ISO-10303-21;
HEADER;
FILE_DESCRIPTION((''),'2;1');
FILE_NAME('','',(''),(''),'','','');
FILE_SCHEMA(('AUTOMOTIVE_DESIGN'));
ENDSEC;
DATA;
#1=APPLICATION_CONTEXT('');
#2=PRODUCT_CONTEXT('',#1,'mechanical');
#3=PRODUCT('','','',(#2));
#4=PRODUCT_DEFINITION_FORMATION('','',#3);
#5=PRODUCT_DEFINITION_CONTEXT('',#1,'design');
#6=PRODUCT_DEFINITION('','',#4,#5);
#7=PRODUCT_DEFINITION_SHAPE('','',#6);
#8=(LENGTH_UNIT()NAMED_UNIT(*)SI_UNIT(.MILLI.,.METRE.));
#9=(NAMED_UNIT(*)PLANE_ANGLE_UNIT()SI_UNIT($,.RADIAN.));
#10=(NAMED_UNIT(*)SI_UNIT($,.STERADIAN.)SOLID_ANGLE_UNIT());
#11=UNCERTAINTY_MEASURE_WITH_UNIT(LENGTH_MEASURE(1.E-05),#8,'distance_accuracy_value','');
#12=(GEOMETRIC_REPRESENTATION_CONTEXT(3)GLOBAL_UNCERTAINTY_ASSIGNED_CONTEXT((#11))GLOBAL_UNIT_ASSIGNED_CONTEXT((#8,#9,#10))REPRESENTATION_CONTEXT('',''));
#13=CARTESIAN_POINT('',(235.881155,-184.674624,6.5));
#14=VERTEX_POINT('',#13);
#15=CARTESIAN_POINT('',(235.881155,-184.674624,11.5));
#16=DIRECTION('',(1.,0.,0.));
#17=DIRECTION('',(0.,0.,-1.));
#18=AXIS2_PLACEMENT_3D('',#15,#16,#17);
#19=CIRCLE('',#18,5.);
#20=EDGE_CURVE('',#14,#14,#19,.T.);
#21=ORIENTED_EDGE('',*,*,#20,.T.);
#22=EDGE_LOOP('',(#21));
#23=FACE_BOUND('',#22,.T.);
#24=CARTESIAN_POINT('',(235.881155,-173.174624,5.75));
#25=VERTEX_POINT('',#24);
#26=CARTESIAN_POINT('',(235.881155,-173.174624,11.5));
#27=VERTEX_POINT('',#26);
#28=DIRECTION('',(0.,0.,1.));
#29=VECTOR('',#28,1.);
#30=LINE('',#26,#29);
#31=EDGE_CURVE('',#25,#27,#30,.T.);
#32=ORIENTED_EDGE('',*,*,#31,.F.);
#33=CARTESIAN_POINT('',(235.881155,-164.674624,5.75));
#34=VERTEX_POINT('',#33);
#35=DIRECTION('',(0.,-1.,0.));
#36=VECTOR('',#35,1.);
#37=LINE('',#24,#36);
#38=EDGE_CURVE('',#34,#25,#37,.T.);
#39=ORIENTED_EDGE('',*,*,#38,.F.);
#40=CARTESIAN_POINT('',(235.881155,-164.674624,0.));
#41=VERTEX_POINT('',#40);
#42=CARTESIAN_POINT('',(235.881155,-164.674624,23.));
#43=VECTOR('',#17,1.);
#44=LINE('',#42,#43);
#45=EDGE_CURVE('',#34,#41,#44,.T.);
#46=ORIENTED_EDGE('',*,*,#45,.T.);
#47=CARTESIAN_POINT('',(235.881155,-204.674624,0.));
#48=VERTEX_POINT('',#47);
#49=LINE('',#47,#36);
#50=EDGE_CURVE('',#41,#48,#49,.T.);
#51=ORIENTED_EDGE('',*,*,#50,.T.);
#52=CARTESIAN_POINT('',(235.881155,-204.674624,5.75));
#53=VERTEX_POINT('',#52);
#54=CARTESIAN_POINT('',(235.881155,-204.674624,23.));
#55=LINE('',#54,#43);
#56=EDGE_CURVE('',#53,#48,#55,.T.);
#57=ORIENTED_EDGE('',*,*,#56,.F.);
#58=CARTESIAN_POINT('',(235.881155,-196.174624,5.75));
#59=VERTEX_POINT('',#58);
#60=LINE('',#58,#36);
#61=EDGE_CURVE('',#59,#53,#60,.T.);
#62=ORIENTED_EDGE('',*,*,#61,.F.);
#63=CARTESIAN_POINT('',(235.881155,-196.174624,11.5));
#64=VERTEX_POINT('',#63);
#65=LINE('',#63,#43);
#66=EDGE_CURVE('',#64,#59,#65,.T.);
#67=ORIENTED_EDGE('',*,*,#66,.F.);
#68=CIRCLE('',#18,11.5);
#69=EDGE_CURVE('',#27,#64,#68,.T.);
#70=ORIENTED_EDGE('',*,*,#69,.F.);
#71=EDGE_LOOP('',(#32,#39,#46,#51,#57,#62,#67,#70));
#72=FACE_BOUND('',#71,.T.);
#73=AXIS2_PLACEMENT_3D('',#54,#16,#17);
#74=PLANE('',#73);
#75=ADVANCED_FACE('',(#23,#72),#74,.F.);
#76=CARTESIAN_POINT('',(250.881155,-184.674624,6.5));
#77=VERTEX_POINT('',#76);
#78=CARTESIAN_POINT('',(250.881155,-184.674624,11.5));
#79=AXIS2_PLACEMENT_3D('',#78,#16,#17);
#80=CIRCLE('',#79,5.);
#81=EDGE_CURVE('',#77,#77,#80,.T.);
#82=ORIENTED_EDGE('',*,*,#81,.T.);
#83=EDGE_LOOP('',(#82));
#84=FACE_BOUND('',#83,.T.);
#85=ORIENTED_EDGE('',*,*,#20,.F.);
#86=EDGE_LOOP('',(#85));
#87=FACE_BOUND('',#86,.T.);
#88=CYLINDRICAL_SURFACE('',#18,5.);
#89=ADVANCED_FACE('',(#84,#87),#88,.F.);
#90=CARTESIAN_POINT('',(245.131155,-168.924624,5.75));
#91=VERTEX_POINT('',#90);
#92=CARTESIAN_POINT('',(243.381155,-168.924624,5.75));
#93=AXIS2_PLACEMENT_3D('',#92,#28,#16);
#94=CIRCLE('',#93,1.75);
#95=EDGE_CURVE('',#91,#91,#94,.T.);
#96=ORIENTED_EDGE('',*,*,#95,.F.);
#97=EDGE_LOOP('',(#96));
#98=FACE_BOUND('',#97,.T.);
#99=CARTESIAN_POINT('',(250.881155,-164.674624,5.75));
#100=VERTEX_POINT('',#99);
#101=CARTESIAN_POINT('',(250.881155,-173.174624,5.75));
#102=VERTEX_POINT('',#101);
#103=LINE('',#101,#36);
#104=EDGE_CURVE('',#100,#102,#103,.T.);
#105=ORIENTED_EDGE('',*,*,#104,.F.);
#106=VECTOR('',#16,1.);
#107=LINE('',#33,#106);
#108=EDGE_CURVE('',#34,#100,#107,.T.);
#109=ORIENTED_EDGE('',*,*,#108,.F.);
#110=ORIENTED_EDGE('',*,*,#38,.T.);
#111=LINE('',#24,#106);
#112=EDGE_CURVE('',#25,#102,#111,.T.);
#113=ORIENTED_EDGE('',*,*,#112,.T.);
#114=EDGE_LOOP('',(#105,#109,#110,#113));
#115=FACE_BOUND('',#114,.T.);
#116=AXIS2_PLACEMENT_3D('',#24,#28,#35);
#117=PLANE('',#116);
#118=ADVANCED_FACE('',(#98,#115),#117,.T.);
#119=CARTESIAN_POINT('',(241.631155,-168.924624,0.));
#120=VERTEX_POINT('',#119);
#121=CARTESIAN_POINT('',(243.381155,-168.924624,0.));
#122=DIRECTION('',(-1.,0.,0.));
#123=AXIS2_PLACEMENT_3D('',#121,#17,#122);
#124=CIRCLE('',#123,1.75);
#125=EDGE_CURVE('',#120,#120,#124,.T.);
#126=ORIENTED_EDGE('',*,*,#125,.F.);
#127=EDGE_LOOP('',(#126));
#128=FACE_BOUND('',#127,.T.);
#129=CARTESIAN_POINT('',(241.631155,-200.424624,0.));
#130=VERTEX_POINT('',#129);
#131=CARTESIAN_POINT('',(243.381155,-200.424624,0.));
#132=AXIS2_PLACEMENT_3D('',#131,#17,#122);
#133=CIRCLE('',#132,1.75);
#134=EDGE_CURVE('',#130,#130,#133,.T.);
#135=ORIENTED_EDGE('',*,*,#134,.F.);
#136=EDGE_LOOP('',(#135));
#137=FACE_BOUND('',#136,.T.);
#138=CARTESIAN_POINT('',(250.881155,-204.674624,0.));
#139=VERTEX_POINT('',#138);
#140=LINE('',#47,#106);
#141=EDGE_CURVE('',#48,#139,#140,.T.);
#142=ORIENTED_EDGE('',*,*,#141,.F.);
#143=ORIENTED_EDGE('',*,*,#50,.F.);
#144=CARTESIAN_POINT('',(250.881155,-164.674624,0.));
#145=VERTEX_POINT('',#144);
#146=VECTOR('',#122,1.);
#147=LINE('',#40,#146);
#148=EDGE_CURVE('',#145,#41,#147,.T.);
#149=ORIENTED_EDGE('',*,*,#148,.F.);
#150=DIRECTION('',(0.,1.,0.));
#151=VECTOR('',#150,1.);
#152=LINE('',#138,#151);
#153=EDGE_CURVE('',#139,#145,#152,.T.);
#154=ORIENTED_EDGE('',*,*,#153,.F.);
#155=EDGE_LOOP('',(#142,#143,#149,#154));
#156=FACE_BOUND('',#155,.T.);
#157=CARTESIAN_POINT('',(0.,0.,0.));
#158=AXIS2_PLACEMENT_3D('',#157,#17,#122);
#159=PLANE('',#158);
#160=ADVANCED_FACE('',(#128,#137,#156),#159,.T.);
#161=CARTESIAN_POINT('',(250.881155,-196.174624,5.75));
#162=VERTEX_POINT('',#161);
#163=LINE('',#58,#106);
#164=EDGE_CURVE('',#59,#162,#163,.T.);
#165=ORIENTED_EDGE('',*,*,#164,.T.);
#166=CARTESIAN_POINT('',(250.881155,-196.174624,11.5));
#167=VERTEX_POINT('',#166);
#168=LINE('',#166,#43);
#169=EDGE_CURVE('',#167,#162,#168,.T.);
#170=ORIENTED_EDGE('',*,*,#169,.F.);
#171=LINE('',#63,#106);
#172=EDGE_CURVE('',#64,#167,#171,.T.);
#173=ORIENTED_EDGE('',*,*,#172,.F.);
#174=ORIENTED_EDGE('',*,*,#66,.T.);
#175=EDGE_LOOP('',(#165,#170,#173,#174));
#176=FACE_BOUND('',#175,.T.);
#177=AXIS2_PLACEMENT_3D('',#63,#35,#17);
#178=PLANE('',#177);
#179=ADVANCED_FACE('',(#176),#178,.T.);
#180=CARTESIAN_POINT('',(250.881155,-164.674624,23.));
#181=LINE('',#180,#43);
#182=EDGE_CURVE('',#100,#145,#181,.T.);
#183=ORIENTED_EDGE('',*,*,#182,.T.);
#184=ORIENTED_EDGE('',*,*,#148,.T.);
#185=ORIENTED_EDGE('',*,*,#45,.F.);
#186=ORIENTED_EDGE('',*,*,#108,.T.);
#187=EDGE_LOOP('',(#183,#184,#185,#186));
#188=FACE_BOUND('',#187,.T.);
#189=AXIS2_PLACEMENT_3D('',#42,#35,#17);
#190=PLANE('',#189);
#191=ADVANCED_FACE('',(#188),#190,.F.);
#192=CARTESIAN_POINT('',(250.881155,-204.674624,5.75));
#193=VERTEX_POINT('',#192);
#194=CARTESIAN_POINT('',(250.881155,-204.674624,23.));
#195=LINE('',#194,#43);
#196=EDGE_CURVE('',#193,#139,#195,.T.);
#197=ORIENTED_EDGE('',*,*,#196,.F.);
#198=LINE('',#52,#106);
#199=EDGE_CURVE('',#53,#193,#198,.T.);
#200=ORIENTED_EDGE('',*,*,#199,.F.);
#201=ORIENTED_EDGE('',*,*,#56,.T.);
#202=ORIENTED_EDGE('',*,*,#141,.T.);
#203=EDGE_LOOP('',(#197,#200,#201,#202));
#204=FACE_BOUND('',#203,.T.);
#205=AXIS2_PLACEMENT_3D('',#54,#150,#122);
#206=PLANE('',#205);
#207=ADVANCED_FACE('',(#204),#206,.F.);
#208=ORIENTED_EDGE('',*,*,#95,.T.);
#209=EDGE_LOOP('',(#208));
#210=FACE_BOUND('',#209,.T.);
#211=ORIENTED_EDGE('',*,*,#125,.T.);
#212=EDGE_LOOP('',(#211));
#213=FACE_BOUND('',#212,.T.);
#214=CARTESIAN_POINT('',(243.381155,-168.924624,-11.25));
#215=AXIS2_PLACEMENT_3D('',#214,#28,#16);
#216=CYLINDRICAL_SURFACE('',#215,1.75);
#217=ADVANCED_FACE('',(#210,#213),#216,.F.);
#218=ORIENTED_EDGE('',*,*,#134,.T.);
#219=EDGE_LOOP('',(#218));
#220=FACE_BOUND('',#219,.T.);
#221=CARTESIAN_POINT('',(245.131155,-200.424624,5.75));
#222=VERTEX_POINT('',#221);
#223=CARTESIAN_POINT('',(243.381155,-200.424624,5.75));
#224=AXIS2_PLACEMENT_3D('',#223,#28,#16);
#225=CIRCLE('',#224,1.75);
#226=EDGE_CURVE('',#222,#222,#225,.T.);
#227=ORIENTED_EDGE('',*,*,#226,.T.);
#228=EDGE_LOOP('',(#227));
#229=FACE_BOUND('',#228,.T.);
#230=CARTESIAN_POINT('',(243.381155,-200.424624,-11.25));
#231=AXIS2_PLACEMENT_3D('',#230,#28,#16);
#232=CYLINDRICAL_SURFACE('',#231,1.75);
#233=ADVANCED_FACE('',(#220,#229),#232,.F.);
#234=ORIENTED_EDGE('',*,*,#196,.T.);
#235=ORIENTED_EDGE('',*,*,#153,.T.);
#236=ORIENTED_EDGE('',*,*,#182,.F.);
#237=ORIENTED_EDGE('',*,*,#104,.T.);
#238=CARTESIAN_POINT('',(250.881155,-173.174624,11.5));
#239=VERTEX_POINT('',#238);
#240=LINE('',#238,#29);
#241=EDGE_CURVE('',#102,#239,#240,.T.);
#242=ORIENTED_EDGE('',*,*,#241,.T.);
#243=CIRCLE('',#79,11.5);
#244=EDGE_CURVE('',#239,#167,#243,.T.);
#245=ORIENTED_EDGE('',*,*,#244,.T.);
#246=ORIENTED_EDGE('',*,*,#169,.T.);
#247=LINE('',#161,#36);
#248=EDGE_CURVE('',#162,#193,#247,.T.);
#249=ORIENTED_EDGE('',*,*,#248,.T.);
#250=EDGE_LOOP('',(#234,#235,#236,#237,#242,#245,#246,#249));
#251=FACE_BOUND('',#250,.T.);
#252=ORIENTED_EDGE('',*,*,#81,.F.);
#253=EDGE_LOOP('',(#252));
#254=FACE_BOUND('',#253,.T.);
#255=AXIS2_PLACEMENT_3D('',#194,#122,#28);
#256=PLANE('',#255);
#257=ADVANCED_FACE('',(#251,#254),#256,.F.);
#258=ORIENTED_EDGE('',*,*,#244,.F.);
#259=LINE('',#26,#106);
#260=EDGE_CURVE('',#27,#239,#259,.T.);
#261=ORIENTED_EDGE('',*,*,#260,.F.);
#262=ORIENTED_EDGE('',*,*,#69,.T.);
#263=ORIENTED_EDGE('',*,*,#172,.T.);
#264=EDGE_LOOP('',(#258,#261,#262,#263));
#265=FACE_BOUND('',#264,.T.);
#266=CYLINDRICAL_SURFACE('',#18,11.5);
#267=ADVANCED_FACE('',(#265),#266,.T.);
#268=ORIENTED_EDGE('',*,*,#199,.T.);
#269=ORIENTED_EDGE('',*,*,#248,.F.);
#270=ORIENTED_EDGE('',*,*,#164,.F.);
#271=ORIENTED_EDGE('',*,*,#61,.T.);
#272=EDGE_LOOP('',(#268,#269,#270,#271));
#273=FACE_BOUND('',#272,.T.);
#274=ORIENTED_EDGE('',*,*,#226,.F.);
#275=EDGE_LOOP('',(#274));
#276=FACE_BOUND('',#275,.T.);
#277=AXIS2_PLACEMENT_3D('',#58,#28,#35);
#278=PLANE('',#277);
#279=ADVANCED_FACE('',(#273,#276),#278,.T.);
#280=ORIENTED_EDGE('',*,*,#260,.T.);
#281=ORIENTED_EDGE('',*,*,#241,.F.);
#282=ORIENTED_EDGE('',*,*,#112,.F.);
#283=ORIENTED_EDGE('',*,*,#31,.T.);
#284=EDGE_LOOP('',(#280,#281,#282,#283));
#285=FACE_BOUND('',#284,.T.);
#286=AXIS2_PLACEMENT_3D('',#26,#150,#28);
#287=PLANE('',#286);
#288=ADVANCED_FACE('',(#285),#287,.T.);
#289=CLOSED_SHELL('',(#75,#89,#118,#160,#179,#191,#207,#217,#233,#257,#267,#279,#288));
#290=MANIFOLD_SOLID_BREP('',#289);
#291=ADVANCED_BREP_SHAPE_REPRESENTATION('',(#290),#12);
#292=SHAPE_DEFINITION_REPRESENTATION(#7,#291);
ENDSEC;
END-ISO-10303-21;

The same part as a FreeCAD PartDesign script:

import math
import FreeCAD as App
import Part
import Sketcher

doc = App.newDocument("Part")
params = doc.addObject("Spreadsheet::Sheet", "Params")
for row, (alias, value) in enumerate([
    ("sketch1_width", "15 mm"),
    ("sketch1_height", "40 mm"),
    ("pad1_length", "23 mm"),
    ("sketch2_radius", "11.5 mm"),
    ("sketch2_width", "40 mm"),
    ("sketch2_height", "5.75 mm"),
    ("sketch3_diameter", "10 mm"),
    ("sketch4_diameter", "3.5 mm"),
    ("pocket3_length", "17 mm"),
], start=1):
    params.set(f"A{row}", alias)
    params.set(f"B{row}", "=" + value)
    params.setAlias(f"B{row}", alias)

body = doc.addObject("PartDesign::Body", "Body")

# Sketch on XY plane
sketch1 = doc.addObject("Sketcher::SketchObject", "Sketch")
body.addObject(sketch1)
sketch1.AttachmentSupport = (doc.XY_Plane, [""])
sketch1.MapMode = "FlatFace"
sketch1.addGeometry([
    Part.LineSegment(App.Vector(236, -165, 0), App.Vector(236, -205, 0)),
    Part.LineSegment(App.Vector(236, -205, 0), App.Vector(251, -205, 0)),
    Part.LineSegment(App.Vector(251, -205, 0), App.Vector(251, -165, 0)),
    Part.LineSegment(App.Vector(251, -165, 0), App.Vector(236, -165, 0)),
], False)
sketch1.addConstraint([
    Sketcher.Constraint("Coincident", 0, 2, 1, 1),
    Sketcher.Constraint("Coincident", 1, 2, 2, 1),
    Sketcher.Constraint("Coincident", 2, 2, 3, 1),
    Sketcher.Constraint("Coincident", 3, 2, 0, 1),
    Sketcher.Constraint("Vertical", 0),
    Sketcher.Constraint("Horizontal", 1),
    Sketcher.Constraint("Vertical", 2),
    Sketcher.Constraint("Horizontal", 3),
    Sketcher.Constraint("DistanceX", 1, 1, 1, 2, 15.0),
    Sketcher.Constraint("DistanceY", 0, 2, 0, 1, 40.0),
    Sketcher.Constraint("DistanceX", -1, 1, 0, 2, 235.881155),
    Sketcher.Constraint("DistanceY", 0, 2, -1, 1, 204.674624),
])
sketch1.setExpression("Constraints[8]", "Params.sketch1_width")
sketch1.setExpression("Constraints[9]", "Params.sketch1_height")
pad1 = doc.addObject("PartDesign::Pad", "Pad")
body.addObject(pad1)
pad1.Profile = sketch1
pad1.setExpression("Length", "Params.pad1_length")

# Sketch on YZ plane
sketch2 = doc.addObject("Sketcher::SketchObject", "Sketch001")
body.addObject(sketch2)
sketch2.AttachmentSupport = (doc.YZ_Plane, [""])
sketch2.MapMode = "FlatFace"
sketch2.AttachmentOffset = App.Placement(App.Vector(0, 0, 250.881155), App.Rotation())
sketch2.addGeometry([
    Part.LineSegment(App.Vector(-159, 29, 0), App.Vector(-211, 29, 0)),  # 0
    Part.LineSegment(App.Vector(-211, 29, 0), App.Vector(-211, -6, 0)),  # 1
    Part.LineSegment(App.Vector(-211, -6, 0), App.Vector(-159, -6, 0)),  # 2
    Part.LineSegment(App.Vector(-159, -6, 0), App.Vector(-159, 29, 0)),  # 3
    Part.ArcOfCircle(Part.Circle(App.Vector(-185, 12, 0), App.Vector(0, 0, 1), 12), math.radians(0), math.radians(180)),  # 4
    Part.LineSegment(App.Vector(-173, 12, 0), App.Vector(-173, 6, 0)),  # 5
    Part.LineSegment(App.Vector(-173, 6, 0), App.Vector(-165, 6, 0)),  # 6
    Part.LineSegment(App.Vector(-165, 6, 0), App.Vector(-165, 0, 0)),  # 7
    Part.LineSegment(App.Vector(-165, 0, 0), App.Vector(-205, 0, 0)),  # 8
    Part.LineSegment(App.Vector(-205, 0, 0), App.Vector(-205, 6, 0)),  # 9
    Part.LineSegment(App.Vector(-205, 6, 0), App.Vector(-196, 6, 0)),  # 10
    Part.LineSegment(App.Vector(-196, 6, 0), App.Vector(-196, 12, 0)),  # 11
], False)
sketch2.addConstraint([
    Sketcher.Constraint("Coincident", 0, 2, 1, 1),
    Sketcher.Constraint("Coincident", 1, 2, 2, 1),
    Sketcher.Constraint("Coincident", 2, 2, 3, 1),
    Sketcher.Constraint("Coincident", 3, 2, 0, 1),
    Sketcher.Constraint("Tangent", 4, 1, 5, 1),
    Sketcher.Constraint("Coincident", 5, 2, 6, 1),
    Sketcher.Constraint("Coincident", 6, 2, 7, 1),
    Sketcher.Constraint("Coincident", 7, 2, 8, 1),
    Sketcher.Constraint("Coincident", 8, 2, 9, 1),
    Sketcher.Constraint("Coincident", 9, 2, 10, 1),
    Sketcher.Constraint("Coincident", 10, 2, 11, 1),
    Sketcher.Constraint("Tangent", 11, 2, 4, 2),
    Sketcher.Constraint("Horizontal", 0),
    Sketcher.Constraint("Vertical", 1),
    Sketcher.Constraint("Horizontal", 2),
    Sketcher.Constraint("Vertical", 3),
    Sketcher.Constraint("Vertical", 5),
    Sketcher.Constraint("Horizontal", 6),
    Sketcher.Constraint("Vertical", 7),
    Sketcher.Constraint("Horizontal", 8),
    Sketcher.Constraint("Vertical", 9),
    Sketcher.Constraint("Horizontal", 10),
    Sketcher.Constraint("Vertical", 11),
    Sketcher.Constraint("PointOnObject", 7, 2, -1),
    Sketcher.Constraint("Horizontal", 6, 2, 9, 2),
    Sketcher.Constraint("Equal", 6, 10),
    Sketcher.Constraint("Equal", 5, 7),
    Sketcher.Constraint("Radius", 4, 11.5),
    Sketcher.Constraint("DistanceX", 8, 2, 8, 1, 40.0),
    Sketcher.Constraint("DistanceY", 5, 2, 5, 1, 5.75),
    Sketcher.Constraint("DistanceX", 0, 2, 0, 1, 51.704),
    Sketcher.Constraint("DistanceY", 1, 2, 1, 1, 34.704),
    Sketcher.Constraint("DistanceX", 0, 2, -1, 1, 210.527),
    Sketcher.Constraint("DistanceY", -1, 1, 0, 2, 28.852),
    Sketcher.Constraint("DistanceX", 4, 3, -1, 1, 184.674624),
])
sketch2.setExpression("Constraints[27]", "Params.sketch2_radius")
sketch2.setExpression("Constraints[28]", "Params.sketch2_width")
sketch2.setExpression("Constraints[29]", "Params.sketch2_height")
pocket1 = doc.addObject("PartDesign::Pocket", "Pocket")
body.addObject(pocket1)
pocket1.Profile = sketch2
pocket1.Type = "ThroughAll"

# Sketch on YZ plane
sketch3 = doc.addObject("Sketcher::SketchObject", "Sketch002")
body.addObject(sketch3)
sketch3.AttachmentSupport = (doc.YZ_Plane, [""])
sketch3.MapMode = "FlatFace"
sketch3.AttachmentOffset = App.Placement(App.Vector(0, 0, 250.881155), App.Rotation())
sketch3.addGeometry(Part.Circle(App.Vector(-185, 12, 0), App.Vector(0, 0, 1), 5), False)
sketch3.addConstraint([
    Sketcher.Constraint("Diameter", 0, 10.0),
    Sketcher.Constraint("DistanceY", -1, 1, 0, 3, 11.5),
    Sketcher.Constraint("DistanceX", 0, 3, -1, 1, 184.674624),
])
sketch3.setExpression("Constraints[0]", "Params.sketch3_diameter")
pocket2 = doc.addObject("PartDesign::Pocket", "Pocket001")
body.addObject(pocket2)
pocket2.Profile = sketch3
pocket2.Type = "ThroughAll"

# Sketch on XY plane
sketch4 = doc.addObject("Sketcher::SketchObject", "Sketch003")
body.addObject(sketch4)
sketch4.AttachmentSupport = (doc.XY_Plane, [""])
sketch4.MapMode = "FlatFace"
sketch4.AttachmentOffset = App.Placement(App.Vector(0, 0, 5.75), App.Rotation())
sketch4.addGeometry([
    Part.Circle(App.Vector(243.4, -200.4, 0), App.Vector(0, 0, 1), 1.8),
    Part.Circle(App.Vector(243.4, -168.9, 0), App.Vector(0, 0, 1), 1.8),
], False)
sketch4.addConstraint([
    Sketcher.Constraint("Equal", 0, 1),
    Sketcher.Constraint("Vertical", 0, 3, 1, 3),
    Sketcher.Constraint("Diameter", 0, 3.5),
    Sketcher.Constraint("DistanceY", 0, 3, 1, 3, 31.5),
    Sketcher.Constraint("DistanceX", -1, 1, 0, 3, 243.381155),
    Sketcher.Constraint("DistanceY", 0, 3, -1, 1, 200.424624),
])
sketch4.setExpression("Constraints[2]", "Params.sketch4_diameter")
pocket3 = doc.addObject("PartDesign::Pocket", "Pocket002")
body.addObject(pocket3)
pocket3.Profile = sketch4
pocket3.setExpression("Length", "Params.pocket3_length")

doc.recompute()
